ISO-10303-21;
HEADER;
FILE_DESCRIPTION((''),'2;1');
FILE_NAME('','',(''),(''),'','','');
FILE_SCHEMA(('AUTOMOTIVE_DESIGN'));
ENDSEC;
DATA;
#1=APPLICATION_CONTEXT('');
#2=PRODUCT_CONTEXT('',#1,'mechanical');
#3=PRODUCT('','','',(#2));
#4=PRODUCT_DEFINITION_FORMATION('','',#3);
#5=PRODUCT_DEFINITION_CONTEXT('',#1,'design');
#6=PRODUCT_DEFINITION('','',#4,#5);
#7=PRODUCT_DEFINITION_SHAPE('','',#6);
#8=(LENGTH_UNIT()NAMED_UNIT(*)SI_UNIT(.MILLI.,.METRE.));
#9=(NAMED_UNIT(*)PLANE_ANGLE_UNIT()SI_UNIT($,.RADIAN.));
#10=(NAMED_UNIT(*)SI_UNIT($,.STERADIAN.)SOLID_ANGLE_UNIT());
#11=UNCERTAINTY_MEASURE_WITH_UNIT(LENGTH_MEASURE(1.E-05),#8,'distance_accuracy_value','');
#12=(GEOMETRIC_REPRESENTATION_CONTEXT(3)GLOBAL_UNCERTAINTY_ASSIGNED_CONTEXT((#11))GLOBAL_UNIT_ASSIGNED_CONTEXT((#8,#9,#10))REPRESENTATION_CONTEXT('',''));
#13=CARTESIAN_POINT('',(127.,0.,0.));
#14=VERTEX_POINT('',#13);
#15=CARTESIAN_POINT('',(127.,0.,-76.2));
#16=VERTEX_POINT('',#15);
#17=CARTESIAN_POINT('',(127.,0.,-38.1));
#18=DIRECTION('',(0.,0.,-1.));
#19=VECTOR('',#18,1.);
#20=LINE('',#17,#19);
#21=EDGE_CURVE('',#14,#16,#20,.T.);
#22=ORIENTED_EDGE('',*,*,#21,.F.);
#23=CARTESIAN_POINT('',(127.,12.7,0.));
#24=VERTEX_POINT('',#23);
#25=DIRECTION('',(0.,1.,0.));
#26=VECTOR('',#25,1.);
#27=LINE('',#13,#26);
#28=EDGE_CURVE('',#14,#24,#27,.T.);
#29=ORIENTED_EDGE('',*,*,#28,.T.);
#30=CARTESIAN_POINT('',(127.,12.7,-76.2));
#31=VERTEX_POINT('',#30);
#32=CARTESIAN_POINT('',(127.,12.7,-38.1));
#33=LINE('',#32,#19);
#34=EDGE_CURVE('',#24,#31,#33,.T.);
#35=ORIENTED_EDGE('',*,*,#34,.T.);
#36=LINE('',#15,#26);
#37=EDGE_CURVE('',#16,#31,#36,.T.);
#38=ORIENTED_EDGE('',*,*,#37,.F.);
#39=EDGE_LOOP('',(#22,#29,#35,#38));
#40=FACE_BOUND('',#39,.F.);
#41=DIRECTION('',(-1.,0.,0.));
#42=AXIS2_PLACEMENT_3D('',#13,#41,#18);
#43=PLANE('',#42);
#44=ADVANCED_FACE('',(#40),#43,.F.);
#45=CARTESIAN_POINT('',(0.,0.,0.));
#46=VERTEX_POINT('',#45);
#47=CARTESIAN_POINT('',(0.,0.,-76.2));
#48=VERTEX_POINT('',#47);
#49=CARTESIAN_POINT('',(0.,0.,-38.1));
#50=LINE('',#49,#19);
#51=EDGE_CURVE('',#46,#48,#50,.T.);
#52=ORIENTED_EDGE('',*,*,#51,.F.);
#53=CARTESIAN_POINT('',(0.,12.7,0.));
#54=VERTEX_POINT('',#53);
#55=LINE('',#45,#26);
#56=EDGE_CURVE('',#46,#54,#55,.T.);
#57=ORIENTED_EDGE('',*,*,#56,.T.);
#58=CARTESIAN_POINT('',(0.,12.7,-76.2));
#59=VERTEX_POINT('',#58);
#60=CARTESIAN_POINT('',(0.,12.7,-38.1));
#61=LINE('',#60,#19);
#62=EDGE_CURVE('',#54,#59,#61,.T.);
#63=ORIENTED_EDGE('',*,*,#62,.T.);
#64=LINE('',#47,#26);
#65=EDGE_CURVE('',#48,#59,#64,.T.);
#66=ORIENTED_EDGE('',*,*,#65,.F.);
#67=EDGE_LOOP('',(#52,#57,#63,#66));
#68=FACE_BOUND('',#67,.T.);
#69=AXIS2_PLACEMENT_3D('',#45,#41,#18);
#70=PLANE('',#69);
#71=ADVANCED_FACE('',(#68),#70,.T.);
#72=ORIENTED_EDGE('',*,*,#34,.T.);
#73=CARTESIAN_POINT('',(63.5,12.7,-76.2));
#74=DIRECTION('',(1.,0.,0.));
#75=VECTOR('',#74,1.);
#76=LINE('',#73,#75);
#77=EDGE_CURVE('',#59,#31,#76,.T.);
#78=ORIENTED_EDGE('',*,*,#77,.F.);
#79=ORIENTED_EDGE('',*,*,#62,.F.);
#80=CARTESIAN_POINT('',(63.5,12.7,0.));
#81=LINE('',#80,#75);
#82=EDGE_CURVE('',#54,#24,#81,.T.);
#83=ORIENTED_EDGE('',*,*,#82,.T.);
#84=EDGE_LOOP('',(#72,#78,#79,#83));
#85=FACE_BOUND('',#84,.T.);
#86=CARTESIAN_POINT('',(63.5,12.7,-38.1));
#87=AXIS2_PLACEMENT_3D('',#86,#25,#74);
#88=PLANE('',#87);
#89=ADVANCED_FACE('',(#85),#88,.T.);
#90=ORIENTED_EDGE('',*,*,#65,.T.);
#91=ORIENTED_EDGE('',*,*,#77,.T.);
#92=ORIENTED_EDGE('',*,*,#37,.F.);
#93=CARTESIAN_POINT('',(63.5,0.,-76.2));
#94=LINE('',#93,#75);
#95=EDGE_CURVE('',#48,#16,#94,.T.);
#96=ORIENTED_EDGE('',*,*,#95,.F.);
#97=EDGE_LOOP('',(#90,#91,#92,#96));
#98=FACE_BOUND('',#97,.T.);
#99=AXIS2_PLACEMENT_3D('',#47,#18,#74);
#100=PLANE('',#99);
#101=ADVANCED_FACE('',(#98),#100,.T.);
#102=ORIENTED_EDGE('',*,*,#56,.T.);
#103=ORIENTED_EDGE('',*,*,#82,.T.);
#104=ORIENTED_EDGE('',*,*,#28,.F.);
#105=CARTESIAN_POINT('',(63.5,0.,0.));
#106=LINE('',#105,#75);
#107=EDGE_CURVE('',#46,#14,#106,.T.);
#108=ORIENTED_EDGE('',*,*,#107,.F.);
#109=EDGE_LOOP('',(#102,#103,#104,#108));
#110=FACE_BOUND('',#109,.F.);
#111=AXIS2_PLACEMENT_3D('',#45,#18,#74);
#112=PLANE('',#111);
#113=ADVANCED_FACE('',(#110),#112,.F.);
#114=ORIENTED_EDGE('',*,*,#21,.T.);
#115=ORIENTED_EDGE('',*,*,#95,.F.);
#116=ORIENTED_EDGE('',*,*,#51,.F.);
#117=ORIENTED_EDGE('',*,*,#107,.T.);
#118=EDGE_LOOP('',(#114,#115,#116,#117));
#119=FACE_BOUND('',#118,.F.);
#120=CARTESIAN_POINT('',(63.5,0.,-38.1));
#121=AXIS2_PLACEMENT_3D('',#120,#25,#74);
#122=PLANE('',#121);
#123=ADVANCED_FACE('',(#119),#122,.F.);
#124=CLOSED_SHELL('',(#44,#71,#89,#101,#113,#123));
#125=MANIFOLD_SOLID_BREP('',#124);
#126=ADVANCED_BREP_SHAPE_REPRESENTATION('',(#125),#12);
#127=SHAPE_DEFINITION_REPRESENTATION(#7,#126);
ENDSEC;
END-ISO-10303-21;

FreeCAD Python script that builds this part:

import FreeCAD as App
import Part
import Sketcher
Q = App.Units.Quantity

doc = App.newDocument("Part")
body = doc.addObject("PartDesign::Body", "Body")

sketch1 = body.newObject("Sketcher::SketchObject", "Sketch")
sketch1.AttachmentSupport = (doc.getObject("XZ_Plane"), [""])
sketch1.MapMode = "FlatFace"
sketch1.addGeometry(Part.LineSegment(App.Vector(0, -76, 0), App.Vector(0, 0, 0)), False)
sketch1.addGeometry(Part.LineSegment(App.Vector(0, 0, 0), App.Vector(127, 0, 0)), False)
sketch1.addGeometry(Part.LineSegment(App.Vector(127, 0, 0), App.Vector(127, -76, 0)), False)
sketch1.addGeometry(Part.LineSegment(App.Vector(127, -76, 0), App.Vector(0, -76, 0)), False)
sketch1.addConstraint(Sketcher.Constraint("Coincident", 0, 2, 1, 1))
sketch1.addConstraint(Sketcher.Constraint("Coincident", 1, 2, 2, 1))
sketch1.addConstraint(Sketcher.Constraint("Coincident", 2, 2, 3, 1))
sketch1.addConstraint(Sketcher.Constraint("Coincident", 3, 2, 0, 1))
sketch1.addConstraint(Sketcher.Constraint("Vertical", 0))
sketch1.addConstraint(Sketcher.Constraint("Horizontal", 1))
sketch1.addConstraint(Sketcher.Constraint("Vertical", 2))
sketch1.addConstraint(Sketcher.Constraint("Horizontal", 3))
sketch1.addConstraint(Sketcher.Constraint("Coincident", 0, 2, -1, 1))
sketch1.addConstraint(Sketcher.Constraint("DistanceX", 1, 1, 1, 2, Q("5 in")))
sketch1.addConstraint(Sketcher.Constraint("DistanceY", 0, 1, 0, 2, Q("3 in")))
pad1 = body.newObject("PartDesign::Pad", "Pad")
pad1.Profile = sketch1
pad1.Length = Q("0.5 in")
pad1.Reversed = True

doc.recompute()
